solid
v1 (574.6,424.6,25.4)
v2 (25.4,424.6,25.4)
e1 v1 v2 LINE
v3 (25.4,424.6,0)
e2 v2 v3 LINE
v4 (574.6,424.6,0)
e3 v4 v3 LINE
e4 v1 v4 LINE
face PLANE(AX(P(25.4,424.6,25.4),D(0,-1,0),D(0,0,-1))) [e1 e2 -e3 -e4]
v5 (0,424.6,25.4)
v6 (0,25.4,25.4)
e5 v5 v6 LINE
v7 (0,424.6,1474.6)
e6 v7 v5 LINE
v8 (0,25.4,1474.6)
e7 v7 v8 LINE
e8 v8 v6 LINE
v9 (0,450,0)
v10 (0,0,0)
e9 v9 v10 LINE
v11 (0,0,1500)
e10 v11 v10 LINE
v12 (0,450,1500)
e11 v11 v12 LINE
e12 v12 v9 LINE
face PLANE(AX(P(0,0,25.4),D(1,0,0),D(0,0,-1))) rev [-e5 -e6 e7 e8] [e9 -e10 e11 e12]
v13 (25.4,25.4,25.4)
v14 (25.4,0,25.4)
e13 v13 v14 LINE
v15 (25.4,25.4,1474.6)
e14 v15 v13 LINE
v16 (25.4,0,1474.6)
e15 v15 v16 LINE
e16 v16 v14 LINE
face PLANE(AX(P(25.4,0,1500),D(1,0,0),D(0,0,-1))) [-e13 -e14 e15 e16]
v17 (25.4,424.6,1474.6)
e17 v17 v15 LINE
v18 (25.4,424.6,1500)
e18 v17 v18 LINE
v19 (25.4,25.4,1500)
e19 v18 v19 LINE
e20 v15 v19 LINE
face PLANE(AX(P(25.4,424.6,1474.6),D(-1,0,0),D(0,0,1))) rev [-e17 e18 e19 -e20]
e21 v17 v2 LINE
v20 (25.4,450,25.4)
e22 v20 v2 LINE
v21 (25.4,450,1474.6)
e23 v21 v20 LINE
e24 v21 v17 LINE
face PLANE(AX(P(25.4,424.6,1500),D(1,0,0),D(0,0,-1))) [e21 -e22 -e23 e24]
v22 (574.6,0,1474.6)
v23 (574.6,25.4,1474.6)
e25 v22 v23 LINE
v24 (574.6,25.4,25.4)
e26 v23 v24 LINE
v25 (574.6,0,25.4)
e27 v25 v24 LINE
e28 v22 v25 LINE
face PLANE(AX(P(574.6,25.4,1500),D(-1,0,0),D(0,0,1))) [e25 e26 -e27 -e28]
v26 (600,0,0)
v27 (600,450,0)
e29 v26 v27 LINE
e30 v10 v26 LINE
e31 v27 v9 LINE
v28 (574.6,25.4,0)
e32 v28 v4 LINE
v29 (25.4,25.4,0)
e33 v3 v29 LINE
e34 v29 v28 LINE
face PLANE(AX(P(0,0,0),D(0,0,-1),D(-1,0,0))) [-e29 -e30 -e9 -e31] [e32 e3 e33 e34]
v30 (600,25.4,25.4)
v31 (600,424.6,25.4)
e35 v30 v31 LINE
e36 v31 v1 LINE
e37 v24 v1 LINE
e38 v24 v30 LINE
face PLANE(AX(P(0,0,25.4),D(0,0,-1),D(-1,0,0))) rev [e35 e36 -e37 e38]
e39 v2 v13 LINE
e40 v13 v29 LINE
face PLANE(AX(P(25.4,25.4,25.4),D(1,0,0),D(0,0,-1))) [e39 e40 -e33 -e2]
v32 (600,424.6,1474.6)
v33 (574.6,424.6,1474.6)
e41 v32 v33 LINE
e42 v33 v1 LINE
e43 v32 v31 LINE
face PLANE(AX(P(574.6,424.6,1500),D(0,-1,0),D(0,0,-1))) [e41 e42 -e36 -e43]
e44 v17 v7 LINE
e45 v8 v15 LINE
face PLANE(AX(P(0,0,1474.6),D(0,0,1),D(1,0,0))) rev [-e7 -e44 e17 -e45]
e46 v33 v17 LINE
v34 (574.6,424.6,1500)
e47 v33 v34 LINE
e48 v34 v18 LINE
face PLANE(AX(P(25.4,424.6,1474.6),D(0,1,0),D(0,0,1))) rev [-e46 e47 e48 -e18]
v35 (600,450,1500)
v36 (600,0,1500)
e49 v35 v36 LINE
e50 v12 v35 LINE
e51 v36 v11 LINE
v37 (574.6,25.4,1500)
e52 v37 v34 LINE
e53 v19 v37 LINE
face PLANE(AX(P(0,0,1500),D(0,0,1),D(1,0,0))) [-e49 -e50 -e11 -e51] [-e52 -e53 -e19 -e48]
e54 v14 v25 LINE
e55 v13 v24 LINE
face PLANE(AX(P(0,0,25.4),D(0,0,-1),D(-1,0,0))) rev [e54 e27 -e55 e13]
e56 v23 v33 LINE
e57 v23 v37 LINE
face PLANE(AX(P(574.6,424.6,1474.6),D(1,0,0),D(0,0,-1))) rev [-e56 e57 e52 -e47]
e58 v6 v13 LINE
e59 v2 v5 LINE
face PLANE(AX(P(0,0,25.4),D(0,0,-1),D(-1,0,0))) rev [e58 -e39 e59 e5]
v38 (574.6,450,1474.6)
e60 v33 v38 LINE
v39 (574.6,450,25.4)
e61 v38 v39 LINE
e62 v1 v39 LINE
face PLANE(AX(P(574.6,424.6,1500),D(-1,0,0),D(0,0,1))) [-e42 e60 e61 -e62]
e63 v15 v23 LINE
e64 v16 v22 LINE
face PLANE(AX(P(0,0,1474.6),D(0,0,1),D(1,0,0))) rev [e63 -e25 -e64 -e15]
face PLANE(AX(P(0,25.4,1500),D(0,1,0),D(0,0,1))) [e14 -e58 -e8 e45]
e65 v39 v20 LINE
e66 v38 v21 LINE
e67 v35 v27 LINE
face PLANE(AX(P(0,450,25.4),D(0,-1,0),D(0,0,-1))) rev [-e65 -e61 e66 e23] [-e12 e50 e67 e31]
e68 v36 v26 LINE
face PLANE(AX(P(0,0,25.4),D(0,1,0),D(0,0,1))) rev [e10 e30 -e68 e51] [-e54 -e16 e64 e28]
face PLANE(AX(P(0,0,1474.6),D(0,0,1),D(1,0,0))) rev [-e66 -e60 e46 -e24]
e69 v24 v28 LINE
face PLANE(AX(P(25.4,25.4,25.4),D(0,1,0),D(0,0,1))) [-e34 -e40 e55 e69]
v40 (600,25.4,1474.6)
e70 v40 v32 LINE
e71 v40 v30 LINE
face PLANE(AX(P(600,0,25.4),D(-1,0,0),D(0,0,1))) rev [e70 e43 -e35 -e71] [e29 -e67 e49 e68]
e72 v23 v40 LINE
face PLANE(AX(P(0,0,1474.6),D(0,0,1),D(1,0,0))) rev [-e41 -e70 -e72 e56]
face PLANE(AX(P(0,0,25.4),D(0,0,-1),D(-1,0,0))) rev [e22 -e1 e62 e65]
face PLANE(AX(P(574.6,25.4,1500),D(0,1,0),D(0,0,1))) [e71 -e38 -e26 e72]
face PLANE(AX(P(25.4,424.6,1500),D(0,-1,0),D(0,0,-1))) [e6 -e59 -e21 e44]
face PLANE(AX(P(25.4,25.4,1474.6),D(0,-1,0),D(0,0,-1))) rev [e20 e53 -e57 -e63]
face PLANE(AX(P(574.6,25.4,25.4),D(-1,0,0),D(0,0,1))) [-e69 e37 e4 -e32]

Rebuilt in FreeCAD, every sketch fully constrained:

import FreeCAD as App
import Part
import Sketcher
from FreeCAD import Vector
Q = App.Units.Quantity


def add_polygon(sketch, points):
    """Adds a closed chain of lines whose ends are joined by coincident constraints."""
    first, n = sketch.GeometryCount, len(points)
    for a, b in zip(points, points[1:] + points[:1]):
        sketch.addGeometry(Part.LineSegment(App.Vector(*a, 0), App.Vector(*b, 0)), False)
    for i in range(n):
        sketch.addConstraint(Sketcher.Constraint("Coincident", first + i, 2, first + (i + 1) % n, 1))

doc = App.newDocument("Part")
body = doc.addObject("PartDesign::Body", "Body")

# Sketch on XY plane
sketch1 = body.newObject("Sketcher::SketchObject", "Sketch")
sketch1.AttachmentSupport = (doc.getObject("XY_Plane"), [""])
sketch1.MapMode = "FlatFace"
add_polygon(sketch1, [(0, 450), (0, 0), (600, 0), (600, 450)])  # lines 0-3
add_polygon(sketch1, [(575, 25), (25, 25), (25, 425), (575, 425)])  # lines 4-7
sketch1.addConstraint([
    Sketcher.Constraint("Vertical", 0),
    Sketcher.Constraint("Horizontal", 1),
    Sketcher.Constraint("Vertical", 2),
    Sketcher.Constraint("Horizontal", 3),
    Sketcher.Constraint("Horizontal", 4),
    Sketcher.Constraint("Vertical", 5),
    Sketcher.Constraint("Horizontal", 6),
    Sketcher.Constraint("Vertical", 7),
    Sketcher.Constraint("Coincident", 0, 2, -1, 1),
    Sketcher.Constraint("DistanceX", 1, 1, 1, 2, Q("600 mm")),
    Sketcher.Constraint("DistanceY", 0, 2, 0, 1, Q("450 mm")),
    Sketcher.Constraint("DistanceX", 4, 2, 4, 1, Q("549.2 mm")),
    Sketcher.Constraint("DistanceY", 5, 1, 5, 2, Q("399.2 mm")),
    Sketcher.Constraint("DistanceX", -1, 1, 4, 2, Q("25.4 mm")),
    Sketcher.Constraint("DistanceY", -1, 1, 4, 2, Q("25.4 mm")),
])
pad1 = body.newObject("PartDesign::Pad", "Pad")
pad1.Profile = sketch1
pad1.Length = 25.4

# Sketch on XY plane
sketch2 = body.newObject("Sketcher::SketchObject", "Sketch001")
sketch2.AttachmentSupport = (doc.getObject("XY_Plane"), [""])
sketch2.MapMode = "FlatFace"
add_polygon(sketch2, [(25, 450), (25, 425), (0, 425), (0, 450)])  # lines 0-3
add_polygon(sketch2, [(600, 450), (600, 425), (575, 425), (575, 450)])  # lines 4-7
add_polygon(sketch2, [(600, 25), (600, 0), (575, 0), (575, 25)])  # lines 8-11
add_polygon(sketch2, [(25, 25), (25, 0), (0, 0), (0, 25)])  # lines 12-15
sketch2.addConstraint([
    Sketcher.Constraint("Vertical", 0),
    Sketcher.Constraint("Horizontal", 1),
    Sketcher.Constraint("Vertical", 2),
    Sketcher.Constraint("Horizontal", 3),
    Sketcher.Constraint("Vertical", 4),
    Sketcher.Constraint("Horizontal", 5),
    Sketcher.Constraint("Vertical", 6),
    Sketcher.Constraint("Horizontal", 7),
    Sketcher.Constraint("Vertical", 8),
    Sketcher.Constraint("Horizontal", 9),
    Sketcher.Constraint("Vertical", 10),
    Sketcher.Constraint("Horizontal", 11),
    Sketcher.Constraint("Vertical", 12),
    Sketcher.Constraint("Horizontal", 13),
    Sketcher.Constraint("Vertical", 14),
    Sketcher.Constraint("Horizontal", 15),
    Sketcher.Constraint("Coincident", 13, 2, -1, 1),
    Sketcher.Constraint("PointOnObject", 1, 2, -2),
    Sketcher.Constraint("PointOnObject", 8, 2, -1),
    Sketcher.Constraint("Horizontal", 1, 2, 4, 2),
    Sketcher.Constraint("Horizontal", 3, 2, 6, 2),
    Sketcher.Constraint("Horizontal", 11, 2, 14, 2),
    Sketcher.Constraint("Vertical", 7, 2, 8, 2),
    Sketcher.Constraint("Vertical", 6, 2, 9, 2),
    Sketcher.Constraint("Vertical", 3, 2, 12, 2),
    Sketcher.Constraint("Equal", 3, 5),
    Sketcher.Constraint("Equal", 15, 0),
    Sketcher.Constraint("Equal", 6, 8),
    Sketcher.Constraint("DistanceX", 1, 2, 1, 1, Q("25.4 mm")),
    Sketcher.Constraint("DistanceY", -1, 1, 2, 2, Q("450 mm")),
    Sketcher.Constraint("DistanceX", -1, 1, 4, 2, Q("600 mm")),
])
pad2 = body.newObject("PartDesign::Pad", "Pad001")
pad2.Profile = sketch2
pad2.Length = 1500

# Sketch on XY plane
sketch3 = body.newObject("Sketcher::SketchObject", "Sketch002")
sketch3.AttachmentSupport = (doc.getObject("XY_Plane"), [""])
sketch3.MapMode = "FlatFace"
sketch3.AttachmentOffset = App.Placement(Vector(0, 0, 1500), App.Rotation())
add_polygon(sketch3, [(0, 450), (0, 0), (600, 0), (600, 450)])  # lines 0-3
add_polygon(sketch3, [(575, 25), (25, 25), (25, 425), (575, 425)])  # lines 4-7
sketch3.addConstraint([
    Sketcher.Constraint("Vertical", 0),
    Sketcher.Constraint("Horizontal", 1),
    Sketcher.Constraint("Vertical", 2),
    Sketcher.Constraint("Horizontal", 3),
    Sketcher.Constraint("Horizontal", 4),
    Sketcher.Constraint("Vertical", 5),
    Sketcher.Constraint("Horizontal", 6),
    Sketcher.Constraint("Vertical", 7),
    Sketcher.Constraint("Coincident", 0, 2, -1, 1),
    Sketcher.Constraint("DistanceX", 1, 1, 1, 2, Q("600 mm")),
    Sketcher.Constraint("DistanceY", 0, 2, 0, 1, Q("450 mm")),
    Sketcher.Constraint("DistanceX", 4, 2, 4, 1, Q("549.2 mm")),
    Sketcher.Constraint("DistanceY", 5, 1, 5, 2, Q("399.2 mm")),
    Sketcher.Constraint("DistanceX", -1, 1, 4, 2, Q("25.4 mm")),
    Sketcher.Constraint("DistanceY", -1, 1, 4, 2, Q("25.4 mm")),
])
pad3 = body.newObject("PartDesign::Pad", "Pad002")
pad3.Profile = sketch3
pad3.Length = 25.4
pad3.Reversed = True

doc.recompute()
